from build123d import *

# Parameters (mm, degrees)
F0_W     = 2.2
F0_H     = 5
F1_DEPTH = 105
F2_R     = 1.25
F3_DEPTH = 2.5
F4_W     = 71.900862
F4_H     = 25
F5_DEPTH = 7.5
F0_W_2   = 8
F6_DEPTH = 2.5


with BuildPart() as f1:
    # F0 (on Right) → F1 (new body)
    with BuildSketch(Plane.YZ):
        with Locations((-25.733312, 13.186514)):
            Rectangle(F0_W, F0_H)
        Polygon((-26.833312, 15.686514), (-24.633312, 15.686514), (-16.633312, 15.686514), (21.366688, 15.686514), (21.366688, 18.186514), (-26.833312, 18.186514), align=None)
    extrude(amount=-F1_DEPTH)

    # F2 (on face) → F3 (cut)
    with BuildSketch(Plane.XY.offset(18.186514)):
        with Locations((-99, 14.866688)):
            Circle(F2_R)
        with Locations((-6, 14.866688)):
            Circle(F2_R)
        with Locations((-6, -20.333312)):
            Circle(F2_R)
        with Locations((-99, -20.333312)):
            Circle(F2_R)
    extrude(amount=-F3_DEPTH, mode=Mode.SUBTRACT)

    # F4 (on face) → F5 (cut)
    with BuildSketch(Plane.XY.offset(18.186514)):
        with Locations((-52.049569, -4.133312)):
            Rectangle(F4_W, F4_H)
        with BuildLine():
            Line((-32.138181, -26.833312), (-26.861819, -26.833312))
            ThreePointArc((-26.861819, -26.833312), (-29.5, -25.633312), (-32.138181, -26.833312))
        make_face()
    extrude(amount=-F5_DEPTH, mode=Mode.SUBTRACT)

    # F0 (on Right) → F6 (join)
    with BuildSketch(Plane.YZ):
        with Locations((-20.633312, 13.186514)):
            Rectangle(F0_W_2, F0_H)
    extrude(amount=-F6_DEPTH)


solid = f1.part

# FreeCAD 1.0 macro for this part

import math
import FreeCAD as App
import Part
import Sketcher

V = App.Vector


def add_polygon(sketch, points):
    """Adds a closed chain of lines whose ends are joined by coincident constraints."""
    first, n = sketch.GeometryCount, len(points)
    for a, b in zip(points, points[1:] + points[:1]):
        sketch.addGeometry(Part.LineSegment(App.Vector(*a, 0), App.Vector(*b, 0)), False)
    for i in range(n):
        sketch.addConstraint(Sketcher.Constraint("Coincident", first + i, 2, first + (i + 1) % n, 1))

doc = App.newDocument("Part")
params = doc.addObject("Spreadsheet::Sheet", "Params")
for row, (alias, value) in enumerate([
    ("sketch1_width", "46 mm"),
    ("sketch1_height", "5 mm"),
    ("sketch1_width2", "2.2 mm"),
    ("sketch1_height2", "2.5 mm"),
    ("pad1_length", "105 mm"),
    ("sketch2_diameter", "2.5 mm"),
    ("pocket1_length", "2.5 mm"),
    ("sketch3_radius", "3.5 mm"),
    ("sketch3_height", "25 mm"),
    ("pocket2_length", "7.5 mm"),
    ("sketch4_width", "8 mm"),
    ("sketch4_height", "5 mm"),
    ("pad2_length", "2.5 mm"),
], start=1):
    params.set(f"A{row}", alias)
    params.set(f"B{row}", "=" + value)
    params.setAlias(f"B{row}", alias)

body = doc.addObject("PartDesign::Body", "Body")

sketch1 = doc.addObject("Sketcher::SketchObject", "Sketch")
body.addObject(sketch1)
sketch1.AttachmentSupport = (doc.YZ_Plane, [""])
sketch1.MapMode = "FlatFace"
add_polygon(sketch1, [(-26.8, 10.7), (-24.6, 10.7), (-24.6, 15.7), (21.4, 15.7), (21.4, 18.2), (-26.8, 18.2)])
sketch1.addConstraint([
    Sketcher.Constraint("Horizontal", 0),
    Sketcher.Constraint("Vertical", 1),
    Sketcher.Constraint("Horizontal", 2),
    Sketcher.Constraint("Vertical", 3),
    Sketcher.Constraint("Horizontal", 4),
    Sketcher.Constraint("Vertical", 5),
    Sketcher.Constraint("DistanceX", 2, 1, 2, 2, 46.0),
    Sketcher.Constraint("DistanceY", 1, 1, 1, 2, 5.0),
    Sketcher.Constraint("DistanceX", 0, 1, 0, 2, 2.2),
    Sketcher.Constraint("DistanceY", 3, 1, 3, 2, 2.5),
    Sketcher.Constraint("DistanceX", 0, 2, -1, 1, 24.633312),
    Sketcher.Constraint("DistanceY", -1, 1, 0, 2, 10.686514),
])
sketch1.setExpression("Constraints[12]", "Params.sketch1_width")
sketch1.setExpression("Constraints[13]", "Params.sketch1_height")
sketch1.setExpression("Constraints[14]", "Params.sketch1_width2")
sketch1.setExpression("Constraints[15]", "Params.sketch1_height2")
pad1 = doc.addObject("PartDesign::Pad", "Pad")
body.addObject(pad1)
pad1.Profile = sketch1
pad1.setExpression("Length", "Params.pad1_length")
pad1.Reversed = True

sketch2 = doc.addObject("Sketcher::SketchObject", "Sketch001")
body.addObject(sketch2)
sketch2.AttachmentSupport = (doc.XY_Plane, [""])
sketch2.MapMode = "FlatFace"
sketch2.AttachmentOffset = App.Placement(V(0, 0, 18.186514), App.Rotation())
sketch2.addGeometry([
    Part.Circle(V(-99, 14.9, 0), V(0, 0, 1), 1.2),
    Part.Circle(V(-6, 14.9, 0), V(0, 0, 1), 1.2),
    Part.Circle(V(-6, -20.3, 0), V(0, 0, 1), 1.2),
    Part.Circle(V(-99, -20.3, 0), V(0, 0, 1), 1.2),
], False)
sketch2.addConstraint([
    Sketcher.Constraint("Equal", 0, 1),
    Sketcher.Constraint("Equal", 1, 2),
    Sketcher.Constraint("Equal", 2, 3),
    Sketcher.Constraint("Horizontal", 0, 3, 1, 3),
    Sketcher.Constraint("Horizontal", 2, 3, 3, 3),
    Sketcher.Constraint("Vertical", 1, 3, 2, 3),
    Sketcher.Constraint("Vertical", 0, 3, 3, 3),
    Sketcher.Constraint("Diameter", 0, 2.5),
    Sketcher.Constraint("DistanceX", 0, 3, -1, 1, 99.0),
    Sketcher.Constraint("DistanceX", 1, 3, -1, 1, 6.0),
    Sketcher.Constraint("DistanceY", 2, 3, 1, 3, 35.2),
    Sketcher.Constraint("DistanceY", 2, 3, -1, 1, 20.333312),
])
sketch2.setExpression("Constraints[7]", "Params.sketch2_diameter")
pocket1 = doc.addObject("PartDesign::Pocket", "Pocket")
body.addObject(pocket1)
pocket1.Profile = sketch2
pocket1.setExpression("Length", "Params.pocket1_length")

sketch3 = doc.addObject("Sketcher::SketchObject", "Sketch002")
body.addObject(sketch3)
sketch3.AttachmentSupport = (doc.XY_Plane, [""])
sketch3.MapMode = "FlatFace"
sketch3.AttachmentOffset = App.Placement(V(0, 0, 18.186514), App.Rotation())
add_polygon(sketch3, [(-88, 8.4), (-88, -16.6), (-16.1, -16.6), (-16.1, 8.4)])
sketch3.addGeometry(Part.LineSegment(V(-32.1, -26.8, 0), V(-26.9, -26.8, 0)), False)
sketch3.addGeometry(Part.ArcOfCircle(Part.Circle(V(-29.5, -29.1, 0), V(0, 0, 1), 3.5), math.radians(41), math.radians(139)), False)
sketch3.addConstraint([
    Sketcher.Constraint("Coincident", 4, 1, 5, 2),
    Sketcher.Constraint("Coincident", 5, 1, 4, 2),
    Sketcher.Constraint("Vertical", 0),
    Sketcher.Constraint("Horizontal", 1),
    Sketcher.Constraint("Vertical", 2),
    Sketcher.Constraint("Horizontal", 3),
    Sketcher.Constraint("Horizontal", 4),
    Sketcher.Constraint("Radius", 5, 3.5),
    Sketcher.Constraint("DistanceY", 0, 2, 0, 1, 25.0),
    Sketcher.Constraint("DistanceX", 0, 2, -1, 1, 88.0),
    Sketcher.Constraint("DistanceX", 5, 3, -1, 1, 29.5),
    Sketcher.Constraint("DistanceY", 5, 3, 0, 2, 12.5),
    Sketcher.Constraint("DistanceY", 5, 3, 4, 1, 2.3),
    Sketcher.Constraint("DistanceX", 1, 1, 1, 2, 71.900862),
    Sketcher.Constraint("DistanceY", 5, 3, -1, 1, 29.133312),
])
sketch3.setExpression("Constraints[11]", "Params.sketch3_radius")
sketch3.setExpression("Constraints[12]", "Params.sketch3_height")
pocket2 = doc.addObject("PartDesign::Pocket", "Pocket001")
body.addObject(pocket2)
pocket2.Profile = sketch3
pocket2.setExpression("Length", "Params.pocket2_length")

sketch4 = doc.addObject("Sketcher::SketchObject", "Sketch003")
body.addObject(sketch4)
sketch4.AttachmentSupport = (doc.YZ_Plane, [""])
sketch4.MapMode = "FlatFace"
add_polygon(sketch4, [(-25, 16), (-25, 11), (-17, 11), (-17, 16)])
sketch4.addConstraint([
    Sketcher.Constraint("Vertical", 0),
    Sketcher.Constraint("Horizontal", 1),
    Sketcher.Constraint("Vertical", 2),
    Sketcher.Constraint("Horizontal", 3),
    Sketcher.Constraint("DistanceX", 1, 1, 1, 2, 8.0),
    Sketcher.Constraint("DistanceY", 0, 2, 0, 1, 5.0),
    Sketcher.Constraint("DistanceX", 0, 2, -1, 1, 24.633312),
    Sketcher.Constraint("DistanceY", -1, 1, 0, 2, 10.686514),
])
sketch4.setExpression("Constraints[8]", "Params.sketch4_width")
sketch4.setExpression("Constraints[9]", "Params.sketch4_height")
pad2 = doc.addObject("PartDesign::Pad", "Pad001")
body.addObject(pad2)
pad2.Profile = sketch4
pad2.setExpression("Length", "Params.pad2_length")
pad2.Reversed = True

doc.recompute()
